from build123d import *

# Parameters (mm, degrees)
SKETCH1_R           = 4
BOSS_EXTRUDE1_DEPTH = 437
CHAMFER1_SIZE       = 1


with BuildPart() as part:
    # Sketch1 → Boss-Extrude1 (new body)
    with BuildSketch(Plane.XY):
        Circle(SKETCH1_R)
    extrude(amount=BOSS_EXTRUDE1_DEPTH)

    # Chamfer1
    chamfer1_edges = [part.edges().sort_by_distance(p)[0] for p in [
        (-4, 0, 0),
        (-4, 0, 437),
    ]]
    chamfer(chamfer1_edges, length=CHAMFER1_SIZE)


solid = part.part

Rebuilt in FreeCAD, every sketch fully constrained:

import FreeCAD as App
import Part
import Sketcher

V = App.Vector


def edges_at(feature, points):
    """Names of the edges that pass closest to the given points."""
    edges = feature.Shape.Edges
    near = lambda p: min(range(len(edges)), key=lambda i: edges[i].distToShape(Part.Vertex(*p))[0])
    return sorted({f"Edge{near(p) + 1}" for p in points})

doc = App.newDocument("Part")
params = doc.addObject("Spreadsheet::Sheet", "Params")
for row, (alias, value) in enumerate([
    ("sketch1_diameter", "8 mm"),
    ("pad1_length", "437 mm"),
    ("chamfer_size", "1 mm"),
], start=1):
    params.set(f"A{row}", alias)
    params.set(f"B{row}", "=" + value)
    params.setAlias(f"B{row}", alias)

body = doc.addObject("PartDesign::Body", "Body")

# Sketch on XY plane
sketch1 = body.newObject("Sketcher::SketchObject", "Sketch")
sketch1.AttachmentSupport = (doc.getObject("XY_Plane"), [""])
sketch1.MapMode = "FlatFace"
sketch1.addGeometry(Part.Circle(V(0, 0, 0), V(0, 0, 1), 4), False)
sketch1.addConstraint([
    Sketcher.Constraint("Coincident", 0, 3, -1, 1),
    Sketcher.Constraint("Diameter", 0, 8.0),
])
sketch1.setExpression("Constraints[1]", "Params.sketch1_diameter")
pad1 = body.newObject("PartDesign::Pad", "Pad")
pad1.Profile = sketch1
pad1.setExpression("Length", "Params.pad1_length")
doc.recompute()

chamfer = body.newObject("PartDesign::Chamfer", "Chamfer")
chamfer.Base = (pad1, edges_at(pad1, [(-4, 0, 0), (-4, 0, 437)]))
chamfer.setExpression("Size", "Params.chamfer_size")

doc.recompute()
